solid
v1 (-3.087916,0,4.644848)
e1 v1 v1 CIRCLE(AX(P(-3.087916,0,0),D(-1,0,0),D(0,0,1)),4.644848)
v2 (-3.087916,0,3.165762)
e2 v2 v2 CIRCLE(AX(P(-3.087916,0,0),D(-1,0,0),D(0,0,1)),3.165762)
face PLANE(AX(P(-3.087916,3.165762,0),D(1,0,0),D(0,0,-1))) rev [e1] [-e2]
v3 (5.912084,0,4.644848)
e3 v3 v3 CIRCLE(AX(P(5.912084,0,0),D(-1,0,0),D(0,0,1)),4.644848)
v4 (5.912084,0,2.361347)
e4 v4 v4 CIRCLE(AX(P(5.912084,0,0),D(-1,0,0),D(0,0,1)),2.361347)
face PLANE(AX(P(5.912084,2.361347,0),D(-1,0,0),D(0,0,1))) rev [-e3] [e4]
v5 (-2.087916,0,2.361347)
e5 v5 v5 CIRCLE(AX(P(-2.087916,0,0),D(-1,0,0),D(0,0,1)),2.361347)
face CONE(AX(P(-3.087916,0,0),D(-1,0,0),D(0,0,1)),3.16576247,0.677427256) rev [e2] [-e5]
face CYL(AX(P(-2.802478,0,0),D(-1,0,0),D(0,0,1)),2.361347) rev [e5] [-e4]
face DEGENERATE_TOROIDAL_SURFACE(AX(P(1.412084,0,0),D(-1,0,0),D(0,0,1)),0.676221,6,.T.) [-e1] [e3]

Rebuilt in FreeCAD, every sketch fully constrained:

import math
import FreeCAD as App
import Part
import Sketcher
Q = App.Units.Quantity

doc = App.newDocument("Part")
params = doc.addObject("Spreadsheet::Sheet", "Params")
for row, (alias, value) in enumerate([
    ("sketch1_radius", "6 mm"),
    ("sketch1_width", "8 mm"),
    ("revolution_angle", "360 deg"),
], start=1):
    params.set(f"A{row}", alias)
    params.set(f"B{row}", "=" + value)
    params.setAlias(f"B{row}", alias)

body = doc.addObject("PartDesign::Body", "Body")

# Sketch on XY plane
sketch1 = doc.addObject("Sketcher::SketchObject", "Sketch")
body.addObject(sketch1)
sketch1.AttachmentSupport = (doc.XY_Plane, [""])
sketch1.MapMode = "FlatFace"
sketch1.addGeometry(Part.LineSegment(App.Vector(-2.1, 2.4, 0), App.Vector(5.9, 2.4, 0)), False)
sketch1.addGeometry(Part.LineSegment(App.Vector(5.9, 2.4, 0), App.Vector(5.9, 4.6, 0)), False)
sketch1.addGeometry(Part.ArcOfCircle(Part.Circle(App.Vector(1.4, 0.7, 0), App.Vector(0, 0, 1), 6), math.radians(41), math.radians(139)), False)
sketch1.addGeometry(Part.LineSegment(App.Vector(-3.1, 4.6, 0), App.Vector(-3.1, 3.2, 0)), False)
sketch1.addGeometry(Part.LineSegment(App.Vector(-3.1, 3.2, 0), App.Vector(-2.1, 2.4, 0)), False)
sketch1.addConstraint(Sketcher.Constraint("Coincident", 0, 2, 1, 1))
sketch1.addConstraint(Sketcher.Constraint("Coincident", 1, 2, 2, 1))
sketch1.addConstraint(Sketcher.Constraint("Coincident", 2, 2, 3, 1))
sketch1.addConstraint(Sketcher.Constraint("Coincident", 3, 2, 4, 1))
sketch1.addConstraint(Sketcher.Constraint("Coincident", 4, 2, 0, 1))
sketch1.addConstraint(Sketcher.Constraint("Horizontal", 0))
sketch1.addConstraint(Sketcher.Constraint("Vertical", 1))
sketch1.addConstraint(Sketcher.Constraint("Vertical", 3))
sketch1.addConstraint(Sketcher.Constraint("Horizontal", 1, 2, 2, 2))
sketch1.addConstraint(Sketcher.Constraint("Radius", 2, Q("6 mm")))
sketch1.addConstraint(Sketcher.Constraint("DistanceX", 0, 1, 0, 2, Q("8 mm")))
sketch1.addConstraint(Sketcher.Constraint("DistanceX", 2, 2, 1, 2, Q("9 mm")))
sketch1.addConstraint(Sketcher.Constraint("DistanceY", 1, 1, 1, 2, Q("2.283501 mm")))
sketch1.addConstraint(Sketcher.Constraint("DistanceY", 3, 2, 3, 1, Q("1.479086 mm")))
sketch1.addConstraint(Sketcher.Constraint("DistanceY", -1, 1, 2, 3, Q("0.676221 mm")))
sketch1.addConstraint(Sketcher.Constraint("DistanceX", -1, 1, 2, 3, Q("1.412084 mm")))
sketch1.setExpression("Constraints[9]", "Params.sketch1_radius")
sketch1.setExpression("Constraints[10]", "Params.sketch1_width")
revolution = doc.addObject("PartDesign::Revolution", "Revolution")
body.addObject(revolution)
revolution.Profile = sketch1
revolution.ReferenceAxis = (sketch1, ["H_Axis"])
revolution.setExpression("Angle", "Params.revolution_angle")

doc.recompute()
